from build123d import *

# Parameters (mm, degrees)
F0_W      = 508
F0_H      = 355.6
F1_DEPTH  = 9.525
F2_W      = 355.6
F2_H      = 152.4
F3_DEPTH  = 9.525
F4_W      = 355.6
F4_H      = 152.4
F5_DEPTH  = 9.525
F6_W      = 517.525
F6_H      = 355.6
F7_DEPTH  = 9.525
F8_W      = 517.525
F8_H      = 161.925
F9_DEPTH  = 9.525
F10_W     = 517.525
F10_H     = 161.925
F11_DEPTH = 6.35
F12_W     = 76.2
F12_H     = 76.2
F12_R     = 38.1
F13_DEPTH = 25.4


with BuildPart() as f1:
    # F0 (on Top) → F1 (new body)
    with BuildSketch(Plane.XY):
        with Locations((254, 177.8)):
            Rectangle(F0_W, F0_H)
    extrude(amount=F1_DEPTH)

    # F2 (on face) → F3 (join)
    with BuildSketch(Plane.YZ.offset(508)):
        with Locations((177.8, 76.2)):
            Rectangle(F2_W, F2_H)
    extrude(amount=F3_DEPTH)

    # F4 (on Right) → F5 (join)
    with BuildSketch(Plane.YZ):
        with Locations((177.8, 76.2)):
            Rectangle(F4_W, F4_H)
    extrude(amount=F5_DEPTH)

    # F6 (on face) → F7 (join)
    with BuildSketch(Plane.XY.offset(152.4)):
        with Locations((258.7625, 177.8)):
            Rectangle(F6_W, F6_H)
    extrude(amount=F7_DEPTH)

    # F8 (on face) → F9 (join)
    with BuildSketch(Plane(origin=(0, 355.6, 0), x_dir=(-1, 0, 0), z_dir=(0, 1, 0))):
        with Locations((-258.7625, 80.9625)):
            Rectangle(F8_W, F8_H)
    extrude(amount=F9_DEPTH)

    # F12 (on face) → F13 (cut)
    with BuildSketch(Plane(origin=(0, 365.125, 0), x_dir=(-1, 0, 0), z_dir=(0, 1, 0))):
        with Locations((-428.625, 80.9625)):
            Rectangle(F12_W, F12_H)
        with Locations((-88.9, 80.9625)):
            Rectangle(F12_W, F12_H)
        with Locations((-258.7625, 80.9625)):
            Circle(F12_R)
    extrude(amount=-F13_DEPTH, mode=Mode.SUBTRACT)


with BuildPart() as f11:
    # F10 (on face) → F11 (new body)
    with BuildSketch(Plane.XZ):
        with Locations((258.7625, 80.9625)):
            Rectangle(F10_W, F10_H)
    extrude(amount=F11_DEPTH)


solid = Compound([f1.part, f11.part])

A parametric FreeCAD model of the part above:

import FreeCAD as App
import Part
import Sketcher
Q = App.Units.Quantity

doc = App.newDocument("Part")
body = doc.addObject("PartDesign::Body", "Body")

# Sketch on XY plane
sketch1 = doc.addObject("Sketcher::SketchObject", "Sketch")
body.addObject(sketch1)
sketch1.AttachmentSupport = (doc.XY_Plane, [""])
sketch1.MapMode = "FlatFace"
sketch1.addGeometry([
    Part.LineSegment(App.Vector(0, 356, 0), App.Vector(0, 0, 0)),
    Part.LineSegment(App.Vector(0, 0, 0), App.Vector(508, 0, 0)),
    Part.LineSegment(App.Vector(508, 0, 0), App.Vector(508, 356, 0)),
    Part.LineSegment(App.Vector(508, 356, 0), App.Vector(0, 356, 0)),
], False)
sketch1.addConstraint([
    Sketcher.Constraint("Coincident", 0, 2, 1, 1),
    Sketcher.Constraint("Coincident", 1, 2, 2, 1),
    Sketcher.Constraint("Coincident", 2, 2, 3, 1),
    Sketcher.Constraint("Coincident", 3, 2, 0, 1),
    Sketcher.Constraint("Vertical", 0),
    Sketcher.Constraint("Horizontal", 1),
    Sketcher.Constraint("Vertical", 2),
    Sketcher.Constraint("Horizontal", 3),
    Sketcher.Constraint("Coincident", 0, 2, -1, 1),
    Sketcher.Constraint("DistanceX", 1, 1, 1, 2, Q("20 in")),
    Sketcher.Constraint("DistanceY", 0, 2, 0, 1, Q("14 in")),
])
pad1 = doc.addObject("PartDesign::Pad", "Pad")
body.addObject(pad1)
pad1.Profile = sketch1
pad1.Length = Q("0.375 in")

# Sketch on YZ plane
sketch2 = doc.addObject("Sketcher::SketchObject", "Sketch001")
body.addObject(sketch2)
sketch2.AttachmentSupport = (doc.YZ_Plane, [""])
sketch2.MapMode = "FlatFace"
sketch2.AttachmentOffset = App.Placement(App.Vector(0, 0, 20 * 25.4), App.Rotation())
sketch2.addGeometry([
    Part.LineSegment(App.Vector(0, 152, 0), App.Vector(0, 0, 0)),
    Part.LineSegment(App.Vector(0, 0, 0), App.Vector(356, 0, 0)),
    Part.LineSegment(App.Vector(356, 0, 0), App.Vector(356, 152, 0)),
    Part.LineSegment(App.Vector(356, 152, 0), App.Vector(0, 152, 0)),
], False)
sketch2.addConstraint([
    Sketcher.Constraint("Coincident", 0, 2, 1, 1),
    Sketcher.Constraint("Coincident", 1, 2, 2, 1),
    Sketcher.Constraint("Coincident", 2, 2, 3, 1),
    Sketcher.Constraint("Coincident", 3, 2, 0, 1),
    Sketcher.Constraint("Vertical", 0),
    Sketcher.Constraint("Horizontal", 1),
    Sketcher.Constraint("Vertical", 2),
    Sketcher.Constraint("Horizontal", 3),
    Sketcher.Constraint("Coincident", 0, 2, -1, 1),
    Sketcher.Constraint("DistanceX", 1, 1, 1, 2, Q("14 in")),
    Sketcher.Constraint("DistanceY", 0, 2, 0, 1, Q("6 in")),
])
pad2 = doc.addObject("PartDesign::Pad", "Pad001")
body.addObject(pad2)
pad2.Profile = sketch2
pad2.Length = Q("0.375 in")

# Sketch on YZ plane
sketch3 = doc.addObject("Sketcher::SketchObject", "Sketch002")
body.addObject(sketch3)
sketch3.AttachmentSupport = (doc.YZ_Plane, [""])
sketch3.MapMode = "FlatFace"
sketch3.addGeometry([
    Part.LineSegment(App.Vector(0, 152, 0), App.Vector(0, 0, 0)),
    Part.LineSegment(App.Vector(0, 0, 0), App.Vector(356, 0, 0)),
    Part.LineSegment(App.Vector(356, 0, 0), App.Vector(356, 152, 0)),
    Part.LineSegment(App.Vector(356, 152, 0), App.Vector(0, 152, 0)),
], False)
sketch3.addConstraint([
    Sketcher.Constraint("Coincident", 0, 2, 1, 1),
    Sketcher.Constraint("Coincident", 1, 2, 2, 1),
    Sketcher.Constraint("Coincident", 2, 2, 3, 1),
    Sketcher.Constraint("Coincident", 3, 2, 0, 1),
    Sketcher.Constraint("Vertical", 0),
    Sketcher.Constraint("Horizontal", 1),
    Sketcher.Constraint("Vertical", 2),
    Sketcher.Constraint("Horizontal", 3),
    Sketcher.Constraint("Coincident", 0, 2, -1, 1),
    Sketcher.Constraint("DistanceX", 1, 1, 1, 2, Q("14 in")),
    Sketcher.Constraint("DistanceY", 0, 2, 0, 1, Q("6 in")),
])
pad3 = doc.addObject("PartDesign::Pad", "Pad002")
body.addObject(pad3)
pad3.Profile = sketch3
pad3.Length = Q("0.375 in")

# Sketch on XY plane
sketch4 = doc.addObject("Sketcher::SketchObject", "Sketch003")
body.addObject(sketch4)
sketch4.AttachmentSupport = (doc.XY_Plane, [""])
sketch4.MapMode = "FlatFace"
sketch4.AttachmentOffset = App.Placement(App.Vector(0, 0, 6 * 25.4), App.Rotation())
sketch4.addGeometry([
    Part.LineSegment(App.Vector(0, 356, 0), App.Vector(0, 0, 0)),
    Part.LineSegment(App.Vector(0, 0, 0), App.Vector(518, 0, 0)),
    Part.LineSegment(App.Vector(518, 0, 0), App.Vector(518, 356, 0)),
    Part.LineSegment(App.Vector(518, 356, 0), App.Vector(0, 356, 0)),
], False)
sketch4.addConstraint([
    Sketcher.Constraint("Coincident", 0, 2, 1, 1),
    Sketcher.Constraint("Coincident", 1, 2, 2, 1),
    Sketcher.Constraint("Coincident", 2, 2, 3, 1),
    Sketcher.Constraint("Coincident", 3, 2, 0, 1),
    Sketcher.Constraint("Vertical", 0),
    Sketcher.Constraint("Horizontal", 1),
    Sketcher.Constraint("Vertical", 2),
    Sketcher.Constraint("Horizontal", 3),
    Sketcher.Constraint("Coincident", 0, 2, -1, 1),
    Sketcher.Constraint("DistanceY", 0, 2, 0, 1, Q("14 in")),
    Sketcher.Constraint("DistanceX", 1, 1, 1, 2, Q("20.375 in")),
])
pad4 = doc.addObject("PartDesign::Pad", "Pad003")
body.addObject(pad4)
pad4.Profile = sketch4
pad4.Length = Q("0.375 in")

# Sketch on XZ plane
sketch5 = doc.addObject("Sketcher::SketchObject", "Sketch004")
body.addObject(sketch5)
sketch5.AttachmentSupport = (doc.XZ_Plane, [""])
sketch5.MapMode = "FlatFace"
sketch5.AttachmentOffset = App.Placement(App.Vector(0, 0, -14 * 25.4), App.Rotation())
sketch5.addGeometry([
    Part.LineSegment(App.Vector(518, 162, 0), App.Vector(518, 0, 0)),
    Part.LineSegment(App.Vector(518, 0, 0), App.Vector(0, 0, 0)),
    Part.LineSegment(App.Vector(0, 0, 0), App.Vector(0, 162, 0)),
    Part.LineSegment(App.Vector(0, 162, 0), App.Vector(518, 162, 0)),
], False)
sketch5.addConstraint([
    Sketcher.Constraint("Coincident", 0, 2, 1, 1),
    Sketcher.Constraint("Coincident", 1, 2, 2, 1),
    Sketcher.Constraint("Coincident", 2, 2, 3, 1),
    Sketcher.Constraint("Coincident", 3, 2, 0, 1),
    Sketcher.Constraint("Vertical", 0),
    Sketcher.Constraint("Horizontal", 1),
    Sketcher.Constraint("Vertical", 2),
    Sketcher.Constraint("Horizontal", 3),
    Sketcher.Constraint("Coincident", 1, 2, -1, 1),
    Sketcher.Constraint("DistanceX", 1, 2, 1, 1, Q("20.375 in")),
    Sketcher.Constraint("DistanceY", 0, 2, 0, 1, Q("6.375 in")),
])
pad5 = doc.addObject("PartDesign::Pad", "Pad004")
body.addObject(pad5)
pad5.Profile = sketch5
pad5.Length = Q("0.375 in")
pad5.Reversed = True

# Sketch on XZ plane
sketch6 = doc.addObject("Sketcher::SketchObject", "Sketch005")
body.addObject(sketch6)
sketch6.AttachmentSupport = (doc.XZ_Plane, [""])
sketch6.MapMode = "FlatFace"
sketch6.AttachmentOffset = App.Placement(App.Vector(0, 0, -14.375 * 25.4), App.Rotation())
sketch6.addGeometry([
    Part.LineSegment(App.Vector(467, 119, 0), App.Vector(467, 43, 0)),  # 0
    Part.LineSegment(App.Vector(467, 43, 0), App.Vector(391, 43, 0)),  # 1
    Part.LineSegment(App.Vector(391, 43, 0), App.Vector(391, 119, 0)),  # 2
    Part.LineSegment(App.Vector(391, 119, 0), App.Vector(467, 119, 0)),  # 3
    Part.LineSegment(App.Vector(127, 119, 0), App.Vector(127, 43, 0)),  # 4
    Part.LineSegment(App.Vector(127, 43, 0), App.Vector(51, 43, 0)),  # 5
    Part.LineSegment(App.Vector(51, 43, 0), App.Vector(51, 119, 0)),  # 6
    Part.LineSegment(App.Vector(51, 119, 0), App.Vector(127, 119, 0)),  # 7
    Part.Circle(App.Vector(259, 81, 0), App.Vector(0, 0, 1), 38),  # 8
], False)
sketch6.addConstraint([
    Sketcher.Constraint("Coincident", 0, 2, 1, 1),
    Sketcher.Constraint("Coincident", 1, 2, 2, 1),
    Sketcher.Constraint("Coincident", 2, 2, 3, 1),
    Sketcher.Constraint("Coincident", 3, 2, 0, 1),
    Sketcher.Constraint("Coincident", 4, 2, 5, 1),
    Sketcher.Constraint("Coincident", 5, 2, 6, 1),
    Sketcher.Constraint("Coincident", 6, 2, 7, 1),
    Sketcher.Constraint("Coincident", 7, 2, 4, 1),
    Sketcher.Constraint("Vertical", 0),
    Sketcher.Constraint("Horizontal", 1),
    Sketcher.Constraint("Vertical", 2),
    Sketcher.Constraint("Horizontal", 3),
    Sketcher.Constraint("Vertical", 4),
    Sketcher.Constraint("Horizontal", 5),
    Sketcher.Constraint("Vertical", 6),
    Sketcher.Constraint("Horizontal", 7),
    Sketcher.Constraint("Horizontal", 1, 2, 4, 2),
    Sketcher.Constraint("Horizontal", 3, 2, 6, 2),
    Sketcher.Constraint("Equal", 3, 5),
    Sketcher.Constraint("Equal", 7, 0),
    Sketcher.Constraint("Diameter", 8, Q("3 in")),
    Sketcher.Constraint("DistanceX", 1, 2, 1, 1, Q("3 in")),
    Sketcher.Constraint("DistanceX", -1, 1, 4, 2, Q("5 in")),
    Sketcher.Constraint("DistanceY", 0, 2, 8, 3, Q("1.5 in")),
    Sketcher.Constraint("DistanceX", -1, 1, 8, 3, Q("10.1875 in")),
    Sketcher.Constraint("DistanceY", -1, 1, 8, 3, Q("3.1875 in")),
    Sketcher.Constraint("DistanceX", -1, 1, 0, 2, Q("18.375 in")),
])
pocket1 = doc.addObject("PartDesign::Pocket", "Pocket")
body.addObject(pocket1)
pocket1.Profile = sketch6
pocket1.Length = Q("1 in")
pocket1.Reversed = True
body2 = doc.addObject("PartDesign::Body", "Body001")

# Sketch on XZ plane
sketch7 = doc.addObject("Sketcher::SketchObject", "Sketch006")
body2.addObject(sketch7)
sketch7.AttachmentSupport = (doc.getObject("XZ_Plane001"), [""])
sketch7.MapMode = "FlatFace"
sketch7.addGeometry([
    Part.LineSegment(App.Vector(0, 162, 0), App.Vector(0, 0, 0)),
    Part.LineSegment(App.Vector(0, 0, 0), App.Vector(518, 0, 0)),
    Part.LineSegment(App.Vector(518, 0, 0), App.Vector(518, 162, 0)),
    Part.LineSegment(App.Vector(518, 162, 0), App.Vector(0, 162, 0)),
], False)
sketch7.addConstraint([
    Sketcher.Constraint("Coincident", 0, 2, 1, 1),
    Sketcher.Constraint("Coincident", 1, 2, 2, 1),
    Sketcher.Constraint("Coincident", 2, 2, 3, 1),
    Sketcher.Constraint("Coincident", 3, 2, 0, 1),
    Sketcher.Constraint("Vertical", 0),
    Sketcher.Constraint("Horizontal", 1),
    Sketcher.Constraint("Vertical", 2),
    Sketcher.Constraint("Horizontal", 3),
    Sketcher.Constraint("Coincident", 0, 2, -1, 1),
    Sketcher.Constraint("DistanceX", 1, 1, 1, 2, Q("20.375 in")),
    Sketcher.Constraint("DistanceY", 0, 2, 0, 1, Q("6.375 in")),
])
pad6 = doc.addObject("PartDesign::Pad", "Pad005")
body2.addObject(pad6)
pad6.Profile = sketch7
pad6.Length = Q("0.25 in")

doc.recompute()
